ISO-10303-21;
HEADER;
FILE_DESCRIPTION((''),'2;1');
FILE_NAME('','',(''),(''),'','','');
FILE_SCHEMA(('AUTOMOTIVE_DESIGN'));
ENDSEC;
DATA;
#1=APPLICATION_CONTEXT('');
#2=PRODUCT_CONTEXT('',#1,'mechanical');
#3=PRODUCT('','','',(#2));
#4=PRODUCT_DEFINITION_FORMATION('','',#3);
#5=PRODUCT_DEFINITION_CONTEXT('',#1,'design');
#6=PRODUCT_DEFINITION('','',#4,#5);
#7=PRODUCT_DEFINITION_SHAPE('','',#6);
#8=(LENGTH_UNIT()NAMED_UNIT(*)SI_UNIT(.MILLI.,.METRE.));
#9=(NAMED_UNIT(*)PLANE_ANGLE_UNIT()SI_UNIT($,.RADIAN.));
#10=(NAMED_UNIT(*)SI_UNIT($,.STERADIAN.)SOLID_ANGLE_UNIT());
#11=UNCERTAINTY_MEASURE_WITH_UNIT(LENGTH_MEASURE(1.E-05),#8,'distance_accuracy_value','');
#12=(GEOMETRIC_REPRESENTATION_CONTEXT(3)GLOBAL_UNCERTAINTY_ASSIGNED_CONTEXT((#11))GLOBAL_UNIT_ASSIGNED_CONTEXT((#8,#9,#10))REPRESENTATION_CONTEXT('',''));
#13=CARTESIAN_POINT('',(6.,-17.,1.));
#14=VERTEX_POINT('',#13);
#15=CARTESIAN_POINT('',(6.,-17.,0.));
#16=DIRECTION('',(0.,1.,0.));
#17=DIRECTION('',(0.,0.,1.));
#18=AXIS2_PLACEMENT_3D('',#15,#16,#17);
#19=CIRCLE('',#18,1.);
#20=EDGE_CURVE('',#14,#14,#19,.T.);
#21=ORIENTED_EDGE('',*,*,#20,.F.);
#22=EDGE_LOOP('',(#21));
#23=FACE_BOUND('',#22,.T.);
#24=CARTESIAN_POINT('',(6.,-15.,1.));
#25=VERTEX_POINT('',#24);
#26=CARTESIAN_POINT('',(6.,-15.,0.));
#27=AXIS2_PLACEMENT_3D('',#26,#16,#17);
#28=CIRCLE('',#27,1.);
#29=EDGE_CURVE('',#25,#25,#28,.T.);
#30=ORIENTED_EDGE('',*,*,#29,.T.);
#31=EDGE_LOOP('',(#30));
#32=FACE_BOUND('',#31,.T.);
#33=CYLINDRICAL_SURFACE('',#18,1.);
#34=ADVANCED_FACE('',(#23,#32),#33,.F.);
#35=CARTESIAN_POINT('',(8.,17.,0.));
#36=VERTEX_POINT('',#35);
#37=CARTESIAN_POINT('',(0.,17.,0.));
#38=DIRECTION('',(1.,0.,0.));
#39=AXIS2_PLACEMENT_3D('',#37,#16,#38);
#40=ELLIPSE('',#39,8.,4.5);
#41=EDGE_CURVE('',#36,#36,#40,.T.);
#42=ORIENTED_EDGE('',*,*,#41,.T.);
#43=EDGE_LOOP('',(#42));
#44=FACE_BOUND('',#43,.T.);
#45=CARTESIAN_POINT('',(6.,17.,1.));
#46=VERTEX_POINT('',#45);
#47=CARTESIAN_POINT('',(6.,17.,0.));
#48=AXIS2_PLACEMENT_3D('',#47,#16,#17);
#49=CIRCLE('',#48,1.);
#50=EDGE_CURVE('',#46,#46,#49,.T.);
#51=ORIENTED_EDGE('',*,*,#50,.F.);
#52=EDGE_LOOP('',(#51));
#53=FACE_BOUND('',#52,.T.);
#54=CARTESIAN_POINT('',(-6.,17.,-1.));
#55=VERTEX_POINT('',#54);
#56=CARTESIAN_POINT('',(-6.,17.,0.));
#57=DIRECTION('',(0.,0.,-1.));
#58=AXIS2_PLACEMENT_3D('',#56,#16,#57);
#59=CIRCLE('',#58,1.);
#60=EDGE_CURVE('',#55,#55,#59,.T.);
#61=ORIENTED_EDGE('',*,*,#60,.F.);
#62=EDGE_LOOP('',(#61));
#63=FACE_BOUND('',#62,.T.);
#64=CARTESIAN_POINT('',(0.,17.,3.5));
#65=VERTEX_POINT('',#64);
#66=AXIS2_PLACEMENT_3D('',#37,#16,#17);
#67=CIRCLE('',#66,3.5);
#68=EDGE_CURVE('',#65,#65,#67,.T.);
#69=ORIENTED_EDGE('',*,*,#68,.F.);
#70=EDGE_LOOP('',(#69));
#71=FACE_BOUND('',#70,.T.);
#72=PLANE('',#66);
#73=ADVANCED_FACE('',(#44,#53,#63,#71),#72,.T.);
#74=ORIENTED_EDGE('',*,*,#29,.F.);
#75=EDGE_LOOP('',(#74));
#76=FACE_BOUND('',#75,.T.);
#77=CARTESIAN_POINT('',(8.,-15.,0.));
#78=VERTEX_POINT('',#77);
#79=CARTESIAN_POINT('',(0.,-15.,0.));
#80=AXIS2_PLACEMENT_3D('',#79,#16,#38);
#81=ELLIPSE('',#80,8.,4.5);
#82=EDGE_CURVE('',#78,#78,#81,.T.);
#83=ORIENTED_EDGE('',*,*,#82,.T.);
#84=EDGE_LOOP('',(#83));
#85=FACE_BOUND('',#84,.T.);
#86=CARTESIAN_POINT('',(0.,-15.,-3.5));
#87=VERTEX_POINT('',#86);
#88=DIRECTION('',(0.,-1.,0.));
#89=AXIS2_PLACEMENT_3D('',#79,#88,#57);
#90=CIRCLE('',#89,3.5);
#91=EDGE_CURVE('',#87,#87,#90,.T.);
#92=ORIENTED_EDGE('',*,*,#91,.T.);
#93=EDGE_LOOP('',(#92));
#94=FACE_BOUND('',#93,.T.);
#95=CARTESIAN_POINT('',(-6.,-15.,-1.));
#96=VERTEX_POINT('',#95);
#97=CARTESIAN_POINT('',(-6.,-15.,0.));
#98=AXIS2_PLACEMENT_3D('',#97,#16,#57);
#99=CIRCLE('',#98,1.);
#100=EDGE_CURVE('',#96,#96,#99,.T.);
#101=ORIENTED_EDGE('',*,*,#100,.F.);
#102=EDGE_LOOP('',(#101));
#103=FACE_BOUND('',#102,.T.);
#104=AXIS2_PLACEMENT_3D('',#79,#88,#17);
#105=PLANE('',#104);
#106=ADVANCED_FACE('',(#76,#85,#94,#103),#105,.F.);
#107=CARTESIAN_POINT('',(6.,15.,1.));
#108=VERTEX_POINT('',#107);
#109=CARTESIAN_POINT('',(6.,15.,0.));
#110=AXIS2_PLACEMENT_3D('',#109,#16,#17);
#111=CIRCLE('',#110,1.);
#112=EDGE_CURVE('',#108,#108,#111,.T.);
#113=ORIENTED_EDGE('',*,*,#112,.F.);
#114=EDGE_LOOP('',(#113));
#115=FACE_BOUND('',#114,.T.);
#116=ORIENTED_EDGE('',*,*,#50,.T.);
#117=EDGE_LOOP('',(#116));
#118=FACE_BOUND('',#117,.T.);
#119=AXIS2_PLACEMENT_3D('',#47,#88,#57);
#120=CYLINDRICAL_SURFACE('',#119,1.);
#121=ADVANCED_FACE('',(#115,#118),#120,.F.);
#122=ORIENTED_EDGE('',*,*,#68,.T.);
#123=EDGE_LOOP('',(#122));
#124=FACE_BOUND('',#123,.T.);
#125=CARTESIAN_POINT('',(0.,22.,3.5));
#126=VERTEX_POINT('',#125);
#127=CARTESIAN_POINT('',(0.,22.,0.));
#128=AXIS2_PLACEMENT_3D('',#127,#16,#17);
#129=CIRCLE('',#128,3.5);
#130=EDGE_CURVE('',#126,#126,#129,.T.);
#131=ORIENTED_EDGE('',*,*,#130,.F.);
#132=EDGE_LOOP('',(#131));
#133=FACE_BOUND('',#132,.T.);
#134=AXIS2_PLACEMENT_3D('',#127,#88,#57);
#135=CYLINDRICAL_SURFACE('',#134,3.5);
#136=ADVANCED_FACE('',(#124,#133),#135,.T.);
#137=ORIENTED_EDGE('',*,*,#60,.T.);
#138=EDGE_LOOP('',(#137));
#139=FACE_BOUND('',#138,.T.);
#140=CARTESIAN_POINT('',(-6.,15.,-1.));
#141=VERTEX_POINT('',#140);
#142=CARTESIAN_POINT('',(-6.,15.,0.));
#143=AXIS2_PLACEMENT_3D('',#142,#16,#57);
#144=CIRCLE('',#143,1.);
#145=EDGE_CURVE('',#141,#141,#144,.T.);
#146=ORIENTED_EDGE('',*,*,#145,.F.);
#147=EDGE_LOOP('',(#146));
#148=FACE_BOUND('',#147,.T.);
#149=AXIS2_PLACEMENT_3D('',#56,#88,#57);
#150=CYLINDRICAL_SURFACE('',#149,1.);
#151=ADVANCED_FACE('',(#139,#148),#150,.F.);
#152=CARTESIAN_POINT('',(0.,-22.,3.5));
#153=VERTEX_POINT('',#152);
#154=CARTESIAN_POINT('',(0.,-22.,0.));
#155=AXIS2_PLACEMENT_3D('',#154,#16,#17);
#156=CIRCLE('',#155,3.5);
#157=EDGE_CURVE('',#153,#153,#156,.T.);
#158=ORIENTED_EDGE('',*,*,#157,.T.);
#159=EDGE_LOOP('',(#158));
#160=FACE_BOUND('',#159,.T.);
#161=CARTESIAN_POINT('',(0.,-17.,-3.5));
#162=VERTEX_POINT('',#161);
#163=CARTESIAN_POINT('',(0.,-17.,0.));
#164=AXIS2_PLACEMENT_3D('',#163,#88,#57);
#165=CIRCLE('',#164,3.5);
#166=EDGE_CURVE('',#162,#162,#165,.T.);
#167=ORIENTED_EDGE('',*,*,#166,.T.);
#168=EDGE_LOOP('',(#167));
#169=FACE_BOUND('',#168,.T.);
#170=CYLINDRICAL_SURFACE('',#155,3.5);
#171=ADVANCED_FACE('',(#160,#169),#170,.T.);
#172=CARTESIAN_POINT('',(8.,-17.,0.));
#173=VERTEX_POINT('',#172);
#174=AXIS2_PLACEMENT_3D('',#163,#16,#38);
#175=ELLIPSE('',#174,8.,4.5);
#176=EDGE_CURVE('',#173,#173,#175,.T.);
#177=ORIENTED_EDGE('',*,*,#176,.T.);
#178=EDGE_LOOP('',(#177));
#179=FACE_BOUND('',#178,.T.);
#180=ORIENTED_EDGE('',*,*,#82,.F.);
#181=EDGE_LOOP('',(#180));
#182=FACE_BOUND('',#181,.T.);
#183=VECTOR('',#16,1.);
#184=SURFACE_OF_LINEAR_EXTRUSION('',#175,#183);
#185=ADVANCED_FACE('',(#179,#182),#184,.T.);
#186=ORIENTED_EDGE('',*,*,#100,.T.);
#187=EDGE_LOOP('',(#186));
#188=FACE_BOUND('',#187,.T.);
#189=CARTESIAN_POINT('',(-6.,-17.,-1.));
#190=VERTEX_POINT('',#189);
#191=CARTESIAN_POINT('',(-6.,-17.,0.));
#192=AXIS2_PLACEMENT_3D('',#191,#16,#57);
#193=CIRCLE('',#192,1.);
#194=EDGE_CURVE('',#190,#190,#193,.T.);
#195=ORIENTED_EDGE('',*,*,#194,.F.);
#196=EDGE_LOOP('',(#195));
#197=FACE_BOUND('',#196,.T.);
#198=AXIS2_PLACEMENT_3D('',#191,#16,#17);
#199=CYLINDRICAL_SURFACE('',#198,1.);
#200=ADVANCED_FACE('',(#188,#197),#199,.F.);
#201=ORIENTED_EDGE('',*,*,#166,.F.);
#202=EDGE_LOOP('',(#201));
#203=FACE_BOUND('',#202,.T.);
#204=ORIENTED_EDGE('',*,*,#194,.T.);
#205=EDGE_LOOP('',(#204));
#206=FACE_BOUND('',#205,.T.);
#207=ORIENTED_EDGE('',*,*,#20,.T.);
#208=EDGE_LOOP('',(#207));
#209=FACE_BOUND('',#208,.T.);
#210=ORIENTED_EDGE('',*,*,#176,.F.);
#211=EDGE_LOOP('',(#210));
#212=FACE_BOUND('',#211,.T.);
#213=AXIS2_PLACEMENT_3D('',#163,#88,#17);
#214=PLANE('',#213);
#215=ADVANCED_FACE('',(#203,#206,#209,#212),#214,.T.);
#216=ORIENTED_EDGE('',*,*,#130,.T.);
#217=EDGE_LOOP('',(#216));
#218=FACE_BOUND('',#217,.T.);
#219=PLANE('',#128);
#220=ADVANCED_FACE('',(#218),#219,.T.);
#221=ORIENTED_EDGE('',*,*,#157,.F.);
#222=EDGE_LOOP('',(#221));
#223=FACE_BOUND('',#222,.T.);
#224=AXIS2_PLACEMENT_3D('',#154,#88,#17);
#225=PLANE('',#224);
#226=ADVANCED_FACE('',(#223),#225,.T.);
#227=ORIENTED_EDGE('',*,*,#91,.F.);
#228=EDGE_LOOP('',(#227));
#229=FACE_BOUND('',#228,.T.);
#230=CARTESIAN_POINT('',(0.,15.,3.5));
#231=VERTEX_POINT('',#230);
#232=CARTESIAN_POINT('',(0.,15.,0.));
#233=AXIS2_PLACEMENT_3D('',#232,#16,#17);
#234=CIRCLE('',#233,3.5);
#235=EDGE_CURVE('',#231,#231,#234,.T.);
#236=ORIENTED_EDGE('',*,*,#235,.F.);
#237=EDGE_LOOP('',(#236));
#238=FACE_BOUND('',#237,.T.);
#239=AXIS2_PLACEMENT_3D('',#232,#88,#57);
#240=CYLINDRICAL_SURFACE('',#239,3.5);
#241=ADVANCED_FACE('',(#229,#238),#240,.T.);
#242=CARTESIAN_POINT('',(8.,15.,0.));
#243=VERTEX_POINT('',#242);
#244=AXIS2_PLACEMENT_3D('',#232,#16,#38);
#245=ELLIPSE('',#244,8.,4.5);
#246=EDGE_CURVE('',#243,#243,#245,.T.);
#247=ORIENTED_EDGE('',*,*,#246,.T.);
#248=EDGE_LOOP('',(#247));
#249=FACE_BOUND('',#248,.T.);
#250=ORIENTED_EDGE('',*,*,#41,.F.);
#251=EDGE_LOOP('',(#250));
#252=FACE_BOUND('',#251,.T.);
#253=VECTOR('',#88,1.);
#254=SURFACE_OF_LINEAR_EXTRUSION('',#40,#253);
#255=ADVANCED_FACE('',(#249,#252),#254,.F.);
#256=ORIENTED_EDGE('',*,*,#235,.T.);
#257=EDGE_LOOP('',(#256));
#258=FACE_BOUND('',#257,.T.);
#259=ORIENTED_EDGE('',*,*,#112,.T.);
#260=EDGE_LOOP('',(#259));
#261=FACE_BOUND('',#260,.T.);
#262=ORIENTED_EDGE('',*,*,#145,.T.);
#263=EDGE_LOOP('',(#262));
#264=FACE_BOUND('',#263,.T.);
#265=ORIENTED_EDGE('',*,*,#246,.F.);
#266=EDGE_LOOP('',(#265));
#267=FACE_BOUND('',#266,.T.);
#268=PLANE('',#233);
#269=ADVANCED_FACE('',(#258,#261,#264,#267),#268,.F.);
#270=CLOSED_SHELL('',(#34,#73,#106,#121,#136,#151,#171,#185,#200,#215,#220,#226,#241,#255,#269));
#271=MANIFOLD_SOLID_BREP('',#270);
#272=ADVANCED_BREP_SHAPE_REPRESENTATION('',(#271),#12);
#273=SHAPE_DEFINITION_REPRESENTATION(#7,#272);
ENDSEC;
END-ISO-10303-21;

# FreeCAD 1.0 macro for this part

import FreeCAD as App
import Part
import Sketcher
from FreeCAD import Vector
Q = App.Units.Quantity

doc = App.newDocument("Part")
body = doc.addObject("PartDesign::Body", "Body")

# Sketch on XZ plane
sketch1 = body.newObject("Sketcher::SketchObject", "Sketch")
sketch1.AttachmentSupport = (doc.getObject("XZ_Plane"), [""])
sketch1.MapMode = "FlatFace"
sketch1.addGeometry(Part.Circle(Vector(0, 0, 0), Vector(0, 0, 1), 3.5), False)
sketch1.addConstraint([
    Sketcher.Constraint("Coincident", 0, 3, -1, 1),
    Sketcher.Constraint("Diameter", 0, Q("7 mm")),
])
pad1 = body.newObject("PartDesign::Pad", "Pad")
pad1.Profile = sketch1
pad1.Length = 15
pad1.Reversed = True

# Sketch on XZ plane
sketch2 = body.newObject("Sketcher::SketchObject", "Sketch001")
sketch2.AttachmentSupport = (doc.getObject("XZ_Plane"), [""])
sketch2.MapMode = "FlatFace"
sketch2.AttachmentOffset = App.Placement(Vector(0, 0, -15), App.Rotation())
sketch2.addGeometry([
    Part.Ellipse(Vector(8, 0, 0), Vector(0, 4.5, 0), Vector(0, 0, 0)),
    Part.Circle(Vector(-6, 0, 0), Vector(0, 0, 1), 1),
    Part.Circle(Vector(6, 0, 0), Vector(0, 0, 1), 1),
], False)
sketch2.addConstraint([
    Sketcher.Constraint("Block", 0),
    Sketcher.Constraint("Equal", 1, 2),
    Sketcher.Constraint("Symmetric", 1, 3, 2, 3, -1, 1),
    Sketcher.Constraint("PointOnObject", 1, 3, -1),
    Sketcher.Constraint("Diameter", 1, Q("2 mm")),
    Sketcher.Constraint("DistanceX", 1, 3, -1, 1, Q("6 mm")),
])
pad2 = body.newObject("PartDesign::Pad", "Pad001")
pad2.Profile = sketch2
pad2.Length = 2
pad2.Reversed = True

# Sketch on XZ plane
sketch3 = body.newObject("Sketcher::SketchObject", "Sketch002")
sketch3.AttachmentSupport = (doc.getObject("XZ_Plane"), [""])
sketch3.MapMode = "FlatFace"
sketch3.AttachmentOffset = App.Placement(Vector(0, 0, -17), App.Rotation())
sketch3.addGeometry(Part.Circle(Vector(0, 0, 0), Vector(0, 0, 1), 3.5), False)
sketch3.addConstraint([
    Sketcher.Constraint("Coincident", 0, 3, -1, 1),
    Sketcher.Constraint("Diameter", 0, Q("7 mm")),
])
pad3 = body.newObject("PartDesign::Pad", "Pad002")
pad3.Profile = sketch3
pad3.Length = 5
pad3.Reversed = True
doc.recompute()

mirrored = body.newObject("PartDesign::Mirrored", "Mirrored")
mirrored.Originals = [pad1, pad2, pad3]
mirrored.MirrorPlane = (doc.getObject("XZ_Plane"), [""])
body.Tip = mirrored

doc.recompute()
